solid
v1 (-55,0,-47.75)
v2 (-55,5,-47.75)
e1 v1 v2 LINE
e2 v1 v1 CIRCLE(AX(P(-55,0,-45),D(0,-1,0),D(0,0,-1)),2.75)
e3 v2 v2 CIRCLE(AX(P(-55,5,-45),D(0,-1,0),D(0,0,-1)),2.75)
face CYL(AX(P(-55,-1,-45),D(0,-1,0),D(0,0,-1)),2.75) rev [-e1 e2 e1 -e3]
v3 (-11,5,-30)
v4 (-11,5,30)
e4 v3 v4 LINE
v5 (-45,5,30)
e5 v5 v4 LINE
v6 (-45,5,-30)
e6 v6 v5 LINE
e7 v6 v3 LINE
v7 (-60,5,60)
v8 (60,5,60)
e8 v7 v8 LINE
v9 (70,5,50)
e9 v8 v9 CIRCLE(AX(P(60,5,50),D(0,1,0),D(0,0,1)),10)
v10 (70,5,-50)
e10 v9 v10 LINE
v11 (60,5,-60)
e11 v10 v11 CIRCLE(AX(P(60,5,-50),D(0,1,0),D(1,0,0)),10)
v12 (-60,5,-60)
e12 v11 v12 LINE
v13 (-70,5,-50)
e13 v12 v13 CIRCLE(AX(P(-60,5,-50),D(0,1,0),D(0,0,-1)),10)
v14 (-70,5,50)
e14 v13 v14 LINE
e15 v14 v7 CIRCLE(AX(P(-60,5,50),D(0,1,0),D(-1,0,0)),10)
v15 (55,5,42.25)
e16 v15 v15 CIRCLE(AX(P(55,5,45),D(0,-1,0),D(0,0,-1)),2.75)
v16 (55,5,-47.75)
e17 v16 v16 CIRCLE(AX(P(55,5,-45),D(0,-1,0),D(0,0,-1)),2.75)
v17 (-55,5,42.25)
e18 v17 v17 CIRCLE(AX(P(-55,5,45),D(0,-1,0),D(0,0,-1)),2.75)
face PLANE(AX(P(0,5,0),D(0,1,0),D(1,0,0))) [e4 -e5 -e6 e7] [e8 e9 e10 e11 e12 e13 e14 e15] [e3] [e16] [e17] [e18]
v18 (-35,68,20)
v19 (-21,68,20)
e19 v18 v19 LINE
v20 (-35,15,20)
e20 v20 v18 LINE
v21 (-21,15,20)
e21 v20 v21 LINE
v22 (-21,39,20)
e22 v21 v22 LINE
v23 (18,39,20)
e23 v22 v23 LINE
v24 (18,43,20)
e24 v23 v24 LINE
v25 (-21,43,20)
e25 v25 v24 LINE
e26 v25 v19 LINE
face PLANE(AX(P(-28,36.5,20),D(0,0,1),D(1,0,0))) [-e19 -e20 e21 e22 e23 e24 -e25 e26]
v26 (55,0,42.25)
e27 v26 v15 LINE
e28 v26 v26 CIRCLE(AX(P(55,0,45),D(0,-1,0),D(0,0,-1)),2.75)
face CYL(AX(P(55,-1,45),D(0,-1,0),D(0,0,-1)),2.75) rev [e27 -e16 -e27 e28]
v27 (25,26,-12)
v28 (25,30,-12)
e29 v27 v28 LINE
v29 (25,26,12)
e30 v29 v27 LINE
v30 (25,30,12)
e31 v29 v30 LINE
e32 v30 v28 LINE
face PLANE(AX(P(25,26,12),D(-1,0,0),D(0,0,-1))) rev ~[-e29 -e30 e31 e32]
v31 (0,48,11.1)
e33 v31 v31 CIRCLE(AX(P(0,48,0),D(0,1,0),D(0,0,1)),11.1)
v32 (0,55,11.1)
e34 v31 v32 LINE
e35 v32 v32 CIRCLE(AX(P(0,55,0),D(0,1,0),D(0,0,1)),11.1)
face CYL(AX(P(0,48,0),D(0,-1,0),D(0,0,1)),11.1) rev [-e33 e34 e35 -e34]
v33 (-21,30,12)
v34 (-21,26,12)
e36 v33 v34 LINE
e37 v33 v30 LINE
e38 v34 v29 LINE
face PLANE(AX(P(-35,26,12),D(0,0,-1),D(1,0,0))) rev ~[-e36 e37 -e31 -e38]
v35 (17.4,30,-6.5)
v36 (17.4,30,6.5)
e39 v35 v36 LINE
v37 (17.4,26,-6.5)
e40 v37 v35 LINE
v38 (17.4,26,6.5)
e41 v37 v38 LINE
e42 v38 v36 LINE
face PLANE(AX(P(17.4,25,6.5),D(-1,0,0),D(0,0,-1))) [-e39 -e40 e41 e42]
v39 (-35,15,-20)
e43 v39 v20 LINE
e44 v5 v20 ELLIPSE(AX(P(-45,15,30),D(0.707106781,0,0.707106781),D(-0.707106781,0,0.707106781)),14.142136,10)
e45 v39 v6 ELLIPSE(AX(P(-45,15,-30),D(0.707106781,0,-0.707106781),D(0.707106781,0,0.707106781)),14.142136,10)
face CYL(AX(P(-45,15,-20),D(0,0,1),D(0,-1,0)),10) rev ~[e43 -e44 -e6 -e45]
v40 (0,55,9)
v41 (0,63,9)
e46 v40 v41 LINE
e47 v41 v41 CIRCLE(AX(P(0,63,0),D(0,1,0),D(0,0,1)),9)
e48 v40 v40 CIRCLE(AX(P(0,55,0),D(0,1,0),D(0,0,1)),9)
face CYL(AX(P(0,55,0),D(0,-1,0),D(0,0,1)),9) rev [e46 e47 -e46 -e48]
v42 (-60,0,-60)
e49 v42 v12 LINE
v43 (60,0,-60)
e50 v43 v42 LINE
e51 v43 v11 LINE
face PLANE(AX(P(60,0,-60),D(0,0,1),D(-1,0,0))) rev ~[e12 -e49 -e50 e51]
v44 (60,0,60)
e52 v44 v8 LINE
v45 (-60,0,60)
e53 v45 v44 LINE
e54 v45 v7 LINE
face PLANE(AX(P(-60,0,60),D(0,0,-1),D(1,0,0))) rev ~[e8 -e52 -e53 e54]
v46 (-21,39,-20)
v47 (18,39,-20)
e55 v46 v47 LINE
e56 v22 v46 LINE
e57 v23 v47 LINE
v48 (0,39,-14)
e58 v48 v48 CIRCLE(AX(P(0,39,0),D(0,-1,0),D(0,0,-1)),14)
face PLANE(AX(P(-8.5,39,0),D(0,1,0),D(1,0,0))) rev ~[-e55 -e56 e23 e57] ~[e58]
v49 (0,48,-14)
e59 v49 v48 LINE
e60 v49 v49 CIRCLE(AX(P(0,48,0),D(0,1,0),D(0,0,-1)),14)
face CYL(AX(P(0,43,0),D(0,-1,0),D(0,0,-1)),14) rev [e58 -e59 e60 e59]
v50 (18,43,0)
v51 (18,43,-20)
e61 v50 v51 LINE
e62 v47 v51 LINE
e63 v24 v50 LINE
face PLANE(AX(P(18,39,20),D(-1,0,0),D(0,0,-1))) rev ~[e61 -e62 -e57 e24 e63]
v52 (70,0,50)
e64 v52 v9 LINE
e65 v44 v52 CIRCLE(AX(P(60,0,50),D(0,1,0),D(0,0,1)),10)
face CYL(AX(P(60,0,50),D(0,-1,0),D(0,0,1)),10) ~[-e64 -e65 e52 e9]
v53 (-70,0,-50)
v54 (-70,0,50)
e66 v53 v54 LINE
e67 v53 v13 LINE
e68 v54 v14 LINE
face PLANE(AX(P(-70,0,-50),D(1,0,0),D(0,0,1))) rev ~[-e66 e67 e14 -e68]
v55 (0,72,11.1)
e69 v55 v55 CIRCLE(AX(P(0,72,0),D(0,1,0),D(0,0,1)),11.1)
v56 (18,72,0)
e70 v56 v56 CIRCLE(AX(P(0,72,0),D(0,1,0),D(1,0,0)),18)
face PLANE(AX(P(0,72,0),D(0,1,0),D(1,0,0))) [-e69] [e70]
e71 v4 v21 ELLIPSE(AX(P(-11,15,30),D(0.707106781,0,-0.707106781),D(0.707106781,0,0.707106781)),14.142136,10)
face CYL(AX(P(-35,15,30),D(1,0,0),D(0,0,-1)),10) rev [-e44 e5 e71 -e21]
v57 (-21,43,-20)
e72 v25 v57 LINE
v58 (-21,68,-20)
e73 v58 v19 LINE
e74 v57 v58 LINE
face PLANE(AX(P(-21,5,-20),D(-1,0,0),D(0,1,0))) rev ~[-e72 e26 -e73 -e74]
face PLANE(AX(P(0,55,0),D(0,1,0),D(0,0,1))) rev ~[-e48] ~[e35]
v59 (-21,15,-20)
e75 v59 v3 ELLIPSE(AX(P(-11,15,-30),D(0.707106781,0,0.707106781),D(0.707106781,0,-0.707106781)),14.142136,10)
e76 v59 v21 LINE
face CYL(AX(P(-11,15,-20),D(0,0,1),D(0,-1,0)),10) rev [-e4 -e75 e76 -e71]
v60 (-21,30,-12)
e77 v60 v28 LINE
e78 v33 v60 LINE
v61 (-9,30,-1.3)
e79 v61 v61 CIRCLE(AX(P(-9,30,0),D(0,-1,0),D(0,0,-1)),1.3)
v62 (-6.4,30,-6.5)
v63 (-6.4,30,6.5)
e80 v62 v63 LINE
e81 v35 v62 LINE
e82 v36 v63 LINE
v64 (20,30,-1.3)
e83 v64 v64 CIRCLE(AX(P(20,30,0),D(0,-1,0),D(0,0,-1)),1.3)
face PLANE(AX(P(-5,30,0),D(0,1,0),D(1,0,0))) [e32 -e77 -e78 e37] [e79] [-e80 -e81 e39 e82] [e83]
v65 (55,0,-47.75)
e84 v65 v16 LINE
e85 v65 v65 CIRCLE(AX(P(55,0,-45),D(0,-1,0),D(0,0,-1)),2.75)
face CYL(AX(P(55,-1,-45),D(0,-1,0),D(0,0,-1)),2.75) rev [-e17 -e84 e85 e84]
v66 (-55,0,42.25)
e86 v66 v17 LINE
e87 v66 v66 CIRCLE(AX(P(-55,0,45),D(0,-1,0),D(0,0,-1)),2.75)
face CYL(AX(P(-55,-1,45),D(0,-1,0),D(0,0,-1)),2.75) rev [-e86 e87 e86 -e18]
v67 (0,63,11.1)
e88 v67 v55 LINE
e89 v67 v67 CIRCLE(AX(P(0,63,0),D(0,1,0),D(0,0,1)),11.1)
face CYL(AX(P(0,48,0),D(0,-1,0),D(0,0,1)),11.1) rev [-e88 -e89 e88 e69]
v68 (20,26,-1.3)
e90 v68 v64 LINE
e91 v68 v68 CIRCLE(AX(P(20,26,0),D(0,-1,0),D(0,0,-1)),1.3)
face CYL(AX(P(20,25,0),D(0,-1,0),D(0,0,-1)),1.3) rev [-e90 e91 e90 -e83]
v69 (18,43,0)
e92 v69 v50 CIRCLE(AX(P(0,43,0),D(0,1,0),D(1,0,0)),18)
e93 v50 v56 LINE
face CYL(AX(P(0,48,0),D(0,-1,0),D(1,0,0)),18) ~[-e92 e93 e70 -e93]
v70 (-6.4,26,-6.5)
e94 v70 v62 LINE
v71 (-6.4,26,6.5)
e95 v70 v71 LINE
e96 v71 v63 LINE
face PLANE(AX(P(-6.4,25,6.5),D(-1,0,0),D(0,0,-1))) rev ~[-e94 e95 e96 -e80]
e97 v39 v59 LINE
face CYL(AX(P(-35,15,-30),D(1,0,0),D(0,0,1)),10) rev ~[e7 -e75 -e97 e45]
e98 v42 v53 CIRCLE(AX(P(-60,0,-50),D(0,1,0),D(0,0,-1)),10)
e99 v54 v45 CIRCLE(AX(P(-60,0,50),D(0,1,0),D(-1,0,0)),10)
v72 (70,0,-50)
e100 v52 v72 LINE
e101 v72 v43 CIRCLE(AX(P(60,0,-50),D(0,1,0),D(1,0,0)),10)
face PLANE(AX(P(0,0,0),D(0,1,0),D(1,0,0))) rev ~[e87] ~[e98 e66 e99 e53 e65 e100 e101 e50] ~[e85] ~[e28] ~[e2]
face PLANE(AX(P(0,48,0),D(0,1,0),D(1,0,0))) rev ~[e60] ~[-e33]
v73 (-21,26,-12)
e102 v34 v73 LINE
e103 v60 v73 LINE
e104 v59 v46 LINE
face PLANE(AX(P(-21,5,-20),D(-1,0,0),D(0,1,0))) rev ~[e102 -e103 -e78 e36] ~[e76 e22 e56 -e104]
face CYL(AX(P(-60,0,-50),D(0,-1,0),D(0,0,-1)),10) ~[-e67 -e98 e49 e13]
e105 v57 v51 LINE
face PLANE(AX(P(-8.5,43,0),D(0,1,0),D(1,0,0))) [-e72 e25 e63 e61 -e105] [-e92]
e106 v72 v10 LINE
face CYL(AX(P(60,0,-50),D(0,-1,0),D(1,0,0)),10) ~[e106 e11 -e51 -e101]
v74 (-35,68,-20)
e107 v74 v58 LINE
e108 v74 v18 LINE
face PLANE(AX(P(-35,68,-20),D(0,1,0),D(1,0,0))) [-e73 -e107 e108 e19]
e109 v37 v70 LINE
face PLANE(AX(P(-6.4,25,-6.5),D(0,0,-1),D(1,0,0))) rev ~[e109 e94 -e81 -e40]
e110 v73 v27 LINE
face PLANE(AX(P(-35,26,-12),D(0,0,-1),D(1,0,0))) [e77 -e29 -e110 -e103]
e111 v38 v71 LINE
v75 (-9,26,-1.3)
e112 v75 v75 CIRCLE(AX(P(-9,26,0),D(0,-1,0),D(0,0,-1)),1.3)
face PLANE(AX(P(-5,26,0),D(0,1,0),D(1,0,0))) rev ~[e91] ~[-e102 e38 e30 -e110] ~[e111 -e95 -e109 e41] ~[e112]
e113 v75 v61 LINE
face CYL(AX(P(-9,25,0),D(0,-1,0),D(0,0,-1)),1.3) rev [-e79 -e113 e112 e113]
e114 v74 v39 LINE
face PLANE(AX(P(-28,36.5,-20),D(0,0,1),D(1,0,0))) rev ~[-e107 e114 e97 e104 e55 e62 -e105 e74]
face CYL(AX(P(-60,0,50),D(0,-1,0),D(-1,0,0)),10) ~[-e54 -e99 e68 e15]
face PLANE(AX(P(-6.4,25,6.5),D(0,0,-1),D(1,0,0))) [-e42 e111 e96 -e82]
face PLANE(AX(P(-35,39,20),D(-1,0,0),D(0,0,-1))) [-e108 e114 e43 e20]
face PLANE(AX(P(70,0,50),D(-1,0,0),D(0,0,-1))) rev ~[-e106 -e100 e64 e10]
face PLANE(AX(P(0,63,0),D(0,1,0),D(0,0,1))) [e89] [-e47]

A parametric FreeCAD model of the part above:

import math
import FreeCAD as App
import Part
import Sketcher

V = App.Vector
Q = App.Units.Quantity


def edges_at(feature, points):
    """Names of the edges that pass closest to the given points."""
    edges = feature.Shape.Edges
    near = lambda p: min(range(len(edges)), key=lambda i: edges[i].distToShape(Part.Vertex(*p))[0])
    return sorted({f"Edge{near(p) + 1}" for p in points})


def add_polygon(sketch, points):
    """Adds a closed chain of lines whose ends are joined by coincident constraints."""
    first, n = sketch.GeometryCount, len(points)
    for a, b in zip(points, points[1:] + points[:1]):
        sketch.addGeometry(Part.LineSegment(App.Vector(*a, 0), App.Vector(*b, 0)), False)
    for i in range(n):
        sketch.addConstraint(Sketcher.Constraint("Coincident", first + i, 2, first + (i + 1) % n, 1))

doc = App.newDocument("Part")
params = doc.addObject("Spreadsheet::Sheet", "Params")
for row, (alias, value) in enumerate([
    ("sketch1_radius", "10 mm"),
    ("sketch1_width", "120 mm"),
    ("sketch1_height", "100 mm"),
    ("pad1_length", "5 mm"),
    ("sketch2_width", "14 mm"),
    ("sketch2_height", "63 mm"),
    ("pad2_length", "40 mm"),
    ("sketch3_width", "60 mm"),
    ("sketch3_height", "24 mm"),
    ("pad3_length", "4 mm"),
    ("sketch4_height", "13 mm"),
    ("sketch4_width", "23.8 mm"),
    ("sketch5_diameter", "2.6 mm"),
    ("sketch6_width", "53 mm"),
    ("sketch6_height", "40 mm"),
    ("pad4_length", "4 mm"),
    ("sketch7_diameter", "28 mm"),
    ("sketch8_diameter", "36 mm"),
    ("sketch8_diameter2", "28 mm"),
    ("pad5_length", "5 mm"),
    ("sketch9_diameter", "36 mm"),
    ("sketch9_diameter2", "22.2 mm"),
    ("pad6_length", "24 mm"),
    ("sketch10_diameter", "18 mm"),
    ("sketch10_diameter2", "22.2 mm"),
    ("pad7_length", "8 mm"),
    ("sketch11_diameter", "5.5 mm"),
    ("fillet_radius", "10 mm"),
], start=1):
    params.set(f"A{row}", alias)
    params.set(f"B{row}", "=" + value)
    params.setAlias(f"B{row}", alias)

body = doc.addObject("PartDesign::Body", "Body")

# Sketch on XZ plane
sketch1 = body.newObject("Sketcher::SketchObject", "Sketch")
sketch1.AttachmentSupport = (doc.getObject("XZ_Plane"), [""])
sketch1.MapMode = "FlatFace"
sketch1.addGeometry(Part.LineSegment(V(-60, 60, 0), V(60, 60, 0)), False)
sketch1.addGeometry(Part.ArcOfCircle(Part.Circle(V(60, 50, 0), V(0, 0, 1), 10), math.radians(0), math.radians(90)), False)
sketch1.addGeometry(Part.LineSegment(V(70, 50, 0), V(70, -50, 0)), False)
sketch1.addGeometry(Part.ArcOfCircle(Part.Circle(V(60, -50, 0), V(0, 0, 1), 10), math.radians(-90), math.radians(0)), False)
sketch1.addGeometry(Part.LineSegment(V(60, -60, 0), V(-60, -60, 0)), False)
sketch1.addGeometry(Part.ArcOfCircle(Part.Circle(V(-60, -50, 0), V(0, 0, 1), 10), math.radians(180), math.radians(270)), False)
sketch1.addGeometry(Part.LineSegment(V(-70, -50, 0), V(-70, 50, 0)), False)
sketch1.addGeometry(Part.ArcOfCircle(Part.Circle(V(-60, 50, 0), V(0, 0, 1), 10), math.radians(90), math.radians(180)), False)
sketch1.addConstraint(Sketcher.Constraint("Tangent", 0, 2, 1, 2))
sketch1.addConstraint(Sketcher.Constraint("Tangent", 1, 1, 2, 1))
sketch1.addConstraint(Sketcher.Constraint("Tangent", 2, 2, 3, 2))
sketch1.addConstraint(Sketcher.Constraint("Tangent", 3, 1, 4, 1))
sketch1.addConstraint(Sketcher.Constraint("Tangent", 4, 2, 5, 2))
sketch1.addConstraint(Sketcher.Constraint("Tangent", 5, 1, 6, 1))
sketch1.addConstraint(Sketcher.Constraint("Tangent", 6, 2, 7, 2))
sketch1.addConstraint(Sketcher.Constraint("Tangent", 7, 1, 0, 1))
sketch1.addConstraint(Sketcher.Constraint("Horizontal", 0))
sketch1.addConstraint(Sketcher.Constraint("Vertical", 2))
sketch1.addConstraint(Sketcher.Constraint("Horizontal", 4))
sketch1.addConstraint(Sketcher.Constraint("Vertical", 6))
sketch1.addConstraint(Sketcher.Constraint("Equal", 1, 3))
sketch1.addConstraint(Sketcher.Constraint("Equal", 3, 5))
sketch1.addConstraint(Sketcher.Constraint("Equal", 5, 7))
sketch1.addConstraint(Sketcher.Constraint("Symmetric", 1, 3, 5, 3, -1, 1))
sketch1.addConstraint(Sketcher.Constraint("Radius", 1, Q("10 mm")))
sketch1.addConstraint(Sketcher.Constraint("DistanceX", 0, 1, 0, 2, Q("120 mm")))
sketch1.addConstraint(Sketcher.Constraint("DistanceY", 2, 2, 2, 1, Q("100 mm")))
sketch1.setExpression("Constraints[16]", "Params.sketch1_radius")
sketch1.setExpression("Constraints[17]", "Params.sketch1_width")
sketch1.setExpression("Constraints[18]", "Params.sketch1_height")
pad1 = body.newObject("PartDesign::Pad", "Pad")
pad1.Profile = sketch1
pad1.setExpression("Length", "Params.pad1_length")
pad1.Reversed = True

# Sketch on XY plane
sketch2 = body.newObject("Sketcher::SketchObject", "Sketch001")
sketch2.AttachmentSupport = (doc.getObject("XY_Plane"), [""])
sketch2.MapMode = "FlatFace"
sketch2.AttachmentOffset = App.Placement(V(0, 0, -20), App.Rotation())
add_polygon(sketch2, [(-35, 68), (-35, 5), (-21, 5), (-21, 68)])  # lines 0-3
sketch2.addConstraint(Sketcher.Constraint("Vertical", 0))
sketch2.addConstraint(Sketcher.Constraint("Horizontal", 1))
sketch2.addConstraint(Sketcher.Constraint("Vertical", 2))
sketch2.addConstraint(Sketcher.Constraint("Horizontal", 3))
sketch2.addConstraint(Sketcher.Constraint("DistanceX", 1, 1, 1, 2, Q("14 mm")))
sketch2.addConstraint(Sketcher.Constraint("DistanceY", 0, 2, 0, 1, Q("63 mm")))
sketch2.addConstraint(Sketcher.Constraint("DistanceX", 0, 2, -1, 1, Q("35 mm")))
sketch2.addConstraint(Sketcher.Constraint("DistanceY", -1, 1, 0, 2, Q("5 mm")))
sketch2.setExpression("Constraints[8]", "Params.sketch2_width")
sketch2.setExpression("Constraints[9]", "Params.sketch2_height")
pad2 = body.newObject("PartDesign::Pad", "Pad001")
pad2.Profile = sketch2
pad2.setExpression("Length", "Params.pad2_length")

# Sketch on XZ plane
sketch3 = body.newObject("Sketcher::SketchObject", "Sketch002")
sketch3.AttachmentSupport = (doc.getObject("XZ_Plane"), [""])
sketch3.MapMode = "FlatFace"
sketch3.AttachmentOffset = App.Placement(V(0, 0, -26), App.Rotation())
add_polygon(sketch3, [(-35, -12), (-35, 12), (25, 12), (25, -12)])  # lines 0-3
sketch3.addConstraint(Sketcher.Constraint("Vertical", 0))
sketch3.addConstraint(Sketcher.Constraint("Horizontal", 1))
sketch3.addConstraint(Sketcher.Constraint("Vertical", 2))
sketch3.addConstraint(Sketcher.Constraint("Horizontal", 3))
sketch3.addConstraint(Sketcher.Constraint("DistanceX", 1, 1, 1, 2, Q("60 mm")))
sketch3.addConstraint(Sketcher.Constraint("DistanceY", 0, 1, 0, 2, Q("24 mm")))
sketch3.addConstraint(Sketcher.Constraint("DistanceX", 0, 2, -1, 1, Q("35 mm")))
sketch3.addConstraint(Sketcher.Constraint("DistanceY", -1, 1, 0, 2, Q("12 mm")))
sketch3.setExpression("Constraints[8]", "Params.sketch3_width")
sketch3.setExpression("Constraints[9]", "Params.sketch3_height")
pad3 = body.newObject("PartDesign::Pad", "Pad002")
pad3.Profile = sketch3
pad3.setExpression("Length", "Params.pad3_length")
pad3.Reversed = True

# Sketch on XZ plane
sketch4 = body.newObject("Sketcher::SketchObject", "Sketch003")
sketch4.AttachmentSupport = (doc.getObject("XZ_Plane"), [""])
sketch4.MapMode = "FlatFace"
sketch4.AttachmentOffset = App.Placement(V(0, 0, -25), App.Rotation())
add_polygon(sketch4, [(-6.4, -6.5), (-6.4, 6.5), (17.4, 6.5), (17.4, -6.5)])  # lines 0-3
sketch4.addConstraint(Sketcher.Constraint("Vertical", 0))
sketch4.addConstraint(Sketcher.Constraint("Horizontal", 1))
sketch4.addConstraint(Sketcher.Constraint("Vertical", 2))
sketch4.addConstraint(Sketcher.Constraint("Horizontal", 3))
sketch4.addConstraint(Sketcher.Constraint("DistanceY", 0, 1, 0, 2, Q("13 mm")))
sketch4.addConstraint(Sketcher.Constraint("DistanceX", 1, 1, 1, 2, Q("23.8 mm")))
sketch4.addConstraint(Sketcher.Constraint("DistanceX", 0, 2, -1, 1, Q("6.4 mm")))
sketch4.addConstraint(Sketcher.Constraint("DistanceY", -1, 1, 0, 2, Q("6.5 mm")))
sketch4.setExpression("Constraints[8]", "Params.sketch4_height")
sketch4.setExpression("Constraints[9]", "Params.sketch4_width")
pocket1 = body.newObject("PartDesign::Pocket", "Pocket")
pocket1.Profile = sketch4
pocket1.Type = "ThroughAll"

# Sketch on XZ plane
sketch5 = body.newObject("Sketcher::SketchObject", "Sketch004")
sketch5.AttachmentSupport = (doc.getObject("XZ_Plane"), [""])
sketch5.MapMode = "FlatFace"
sketch5.AttachmentOffset = App.Placement(V(0, 0, -25), App.Rotation())
sketch5.addGeometry(Part.Circle(V(-9, 0, 0), V(0, 0, 1), 1.3), False)
sketch5.addGeometry(Part.Circle(V(20, 0, 0), V(0, 0, 1), 1.3), False)
sketch5.addConstraint(Sketcher.Constraint("Equal", 0, 1))
sketch5.addConstraint(Sketcher.Constraint("PointOnObject", 0, 3, -1))
sketch5.addConstraint(Sketcher.Constraint("PointOnObject", 1, 3, -1))
sketch5.addConstraint(Sketcher.Constraint("Diameter", 0, Q("2.6 mm")))
sketch5.addConstraint(Sketcher.Constraint("DistanceX", 0, 3, -1, 1, Q("9 mm")))
sketch5.addConstraint(Sketcher.Constraint("DistanceX", -1, 1, 1, 3, Q("20 mm")))
sketch5.setExpression("Constraints[3]", "Params.sketch5_diameter")
pocket2 = body.newObject("PartDesign::Pocket", "Pocket001")
pocket2.Profile = sketch5
pocket2.Type = "ThroughAll"

# Sketch on XZ plane
sketch6 = body.newObject("Sketcher::SketchObject", "Sketch005")
sketch6.AttachmentSupport = (doc.getObject("XZ_Plane"), [""])
sketch6.MapMode = "FlatFace"
sketch6.AttachmentOffset = App.Placement(V(0, 0, -39), App.Rotation())
add_polygon(sketch6, [(-35, -20), (-35, 20), (18, 20), (18, -20)])  # lines 0-3
sketch6.addConstraint(Sketcher.Constraint("Vertical", 0))
sketch6.addConstraint(Sketcher.Constraint("Horizontal", 1))
sketch6.addConstraint(Sketcher.Constraint("Vertical", 2))
sketch6.addConstraint(Sketcher.Constraint("Horizontal", 3))
sketch6.addConstraint(Sketcher.Constraint("DistanceX", 1, 1, 1, 2, Q("53 mm")))
sketch6.addConstraint(Sketcher.Constraint("DistanceY", 0, 1, 0, 2, Q("40 mm")))
sketch6.addConstraint(Sketcher.Constraint("DistanceX", 0, 2, -1, 1, Q("35 mm")))
sketch6.addConstraint(Sketcher.Constraint("DistanceY", -1, 1, 0, 2, Q("20 mm")))
sketch6.setExpression("Constraints[8]", "Params.sketch6_width")
sketch6.setExpression("Constraints[9]", "Params.sketch6_height")
pad4 = body.newObject("PartDesign::Pad", "Pad003")
pad4.Profile = sketch6
pad4.setExpression("Length", "Params.pad4_length")
pad4.Reversed = True

# Sketch on XZ plane
sketch7 = body.newObject("Sketcher::SketchObject", "Sketch006")
sketch7.AttachmentSupport = (doc.getObject("XZ_Plane"), [""])
sketch7.MapMode = "FlatFace"
sketch7.AttachmentOffset = App.Placement(V(0, 0, -38), App.Rotation())
sketch7.addGeometry(Part.Circle(V(0, 0, 0), V(0, 0, 1), 14), False)
sketch7.addConstraint(Sketcher.Constraint("Coincident", 0, 3, -1, 1))
sketch7.addConstraint(Sketcher.Constraint("Diameter", 0, Q("28 mm")))
sketch7.setExpression("Constraints[1]", "Params.sketch7_diameter")
pocket3 = body.newObject("PartDesign::Pocket", "Pocket002")
pocket3.Profile = sketch7
pocket3.Type = "ThroughAll"

# Sketch on XZ plane
sketch8 = body.newObject("Sketcher::SketchObject", "Sketch007")
sketch8.AttachmentSupport = (doc.getObject("XZ_Plane"), [""])
sketch8.MapMode = "FlatFace"
sketch8.AttachmentOffset = App.Placement(V(0, 0, -43), App.Rotation())
sketch8.addGeometry(Part.Circle(V(0, 0, 0), V(0, 0, 1), 18), False)
sketch8.addGeometry(Part.Circle(V(0, 0, 0), V(0, 0, 1), 14), False)
sketch8.addConstraint(Sketcher.Constraint("Coincident", 0, 3, -1, 1))
sketch8.addConstraint(Sketcher.Constraint("Coincident", 1, 3, -1, 1))
sketch8.addConstraint(Sketcher.Constraint("Diameter", 0, Q("36 mm")))
sketch8.addConstraint(Sketcher.Constraint("Diameter", 1, Q("28 mm")))
sketch8.setExpression("Constraints[2]", "Params.sketch8_diameter")
sketch8.setExpression("Constraints[3]", "Params.sketch8_diameter2")
pad5 = body.newObject("PartDesign::Pad", "Pad004")
pad5.Profile = sketch8
pad5.setExpression("Length", "Params.pad5_length")
pad5.Reversed = True

# Sketch on XZ plane
sketch9 = body.newObject("Sketcher::SketchObject", "Sketch008")
sketch9.AttachmentSupport = (doc.getObject("XZ_Plane"), [""])
sketch9.MapMode = "FlatFace"
sketch9.AttachmentOffset = App.Placement(V(0, 0, -48), App.Rotation())
sketch9.addGeometry(Part.Circle(V(0, 0, 0), V(0, 0, 1), 18), False)
sketch9.addGeometry(Part.Circle(V(0, 0, 0), V(0, 0, 1), 11.1), False)
sketch9.addConstraint(Sketcher.Constraint("Coincident", 0, 3, -1, 1))
sketch9.addConstraint(Sketcher.Constraint("Coincident", 1, 3, -1, 1))
sketch9.addConstraint(Sketcher.Constraint("Diameter", 0, Q("36 mm")))
sketch9.addConstraint(Sketcher.Constraint("Diameter", 1, Q("22.2 mm")))
sketch9.setExpression("Constraints[2]", "Params.sketch9_diameter")
sketch9.setExpression("Constraints[3]", "Params.sketch9_diameter2")
pad6 = body.newObject("PartDesign::Pad", "Pad005")
pad6.Profile = sketch9
pad6.setExpression("Length", "Params.pad6_length")
pad6.Reversed = True

# Sketch on XZ plane
sketch10 = body.newObject("Sketcher::SketchObject", "Sketch009")
sketch10.AttachmentSupport = (doc.getObject("XZ_Plane"), [""])
sketch10.MapMode = "FlatFace"
sketch10.AttachmentOffset = App.Placement(V(0, 0, -55), App.Rotation())
sketch10.addGeometry(Part.Circle(V(0, 0, 0), V(0, 0, 1), 11.1), False)
sketch10.addGeometry(Part.Circle(V(0, 0, 0), V(0, 0, 1), 9), False)
sketch10.addConstraint(Sketcher.Constraint("Coincident", 0, 3, -1, 1))
sketch10.addConstraint(Sketcher.Constraint("Coincident", 1, 3, -1, 1))
sketch10.addConstraint(Sketcher.Constraint("Diameter", 1, Q("18 mm")))
sketch10.addConstraint(Sketcher.Constraint("Diameter", 0, Q("22.2 mm")))
sketch10.setExpression("Constraints[2]", "Params.sketch10_diameter")
sketch10.setExpression("Constraints[3]", "Params.sketch10_diameter2")
pad7 = body.newObject("PartDesign::Pad", "Pad006")
pad7.Profile = sketch10
pad7.setExpression("Length", "Params.pad7_length")
pad7.Reversed = True

# Sketch on XZ plane
sketch11 = body.newObject("Sketcher::SketchObject", "Sketch010")
sketch11.AttachmentSupport = (doc.getObject("XZ_Plane"), [""])
sketch11.MapMode = "FlatFace"
sketch11.AttachmentOffset = App.Placement(V(0, 0, 1), App.Rotation())
sketch11.addGeometry(Part.Circle(V(-55, 45, 0), V(0, 0, 1), 2.75), False)
sketch11.addGeometry(Part.Circle(V(55, 45, 0), V(0, 0, 1), 2.75), False)
sketch11.addGeometry(Part.Circle(V(-55, -45, 0), V(0, 0, 1), 2.75), False)
sketch11.addGeometry(Part.Circle(V(55, -45, 0), V(0, 0, 1), 2.75), False)
sketch11.addConstraint(Sketcher.Constraint("Equal", 0, 1))
sketch11.addConstraint(Sketcher.Constraint("Equal", 1, 2))
sketch11.addConstraint(Sketcher.Constraint("Equal", 2, 3))
sketch11.addConstraint(Sketcher.Constraint("Symmetric", 1, 3, 2, 3, -1, 1))
sketch11.addConstraint(Sketcher.Constraint("Symmetric", 0, 3, 3, 3, -1, 1))
sketch11.addConstraint(Sketcher.Constraint("Symmetric", 0, 3, 1, 3, -2))
sketch11.addConstraint(Sketcher.Constraint("Diameter", 0, Q("5.5 mm")))
sketch11.addConstraint(Sketcher.Constraint("DistanceX", 0, 3, -1, 1, Q("55 mm")))
sketch11.addConstraint(Sketcher.Constraint("DistanceY", -1, 1, 0, 3, Q("45 mm")))
sketch11.setExpression("Constraints[6]", "Params.sketch11_diameter")
pocket4 = body.newObject("PartDesign::Pocket", "Pocket003")
pocket4.Profile = sketch11
pocket4.Type = "ThroughAll"
doc.recompute()

fillet = body.newObject("PartDesign::Fillet", "Fillet")
fillet.Base = (pocket4, edges_at(pocket4, [
    (-28, 5, -20),
    (-35, 5, 0),
    (-21, 5, 0),
    (-28, 5, 20),
]))
fillet.setExpression("Radius", "Params.fillet_radius")

doc.recompute()
